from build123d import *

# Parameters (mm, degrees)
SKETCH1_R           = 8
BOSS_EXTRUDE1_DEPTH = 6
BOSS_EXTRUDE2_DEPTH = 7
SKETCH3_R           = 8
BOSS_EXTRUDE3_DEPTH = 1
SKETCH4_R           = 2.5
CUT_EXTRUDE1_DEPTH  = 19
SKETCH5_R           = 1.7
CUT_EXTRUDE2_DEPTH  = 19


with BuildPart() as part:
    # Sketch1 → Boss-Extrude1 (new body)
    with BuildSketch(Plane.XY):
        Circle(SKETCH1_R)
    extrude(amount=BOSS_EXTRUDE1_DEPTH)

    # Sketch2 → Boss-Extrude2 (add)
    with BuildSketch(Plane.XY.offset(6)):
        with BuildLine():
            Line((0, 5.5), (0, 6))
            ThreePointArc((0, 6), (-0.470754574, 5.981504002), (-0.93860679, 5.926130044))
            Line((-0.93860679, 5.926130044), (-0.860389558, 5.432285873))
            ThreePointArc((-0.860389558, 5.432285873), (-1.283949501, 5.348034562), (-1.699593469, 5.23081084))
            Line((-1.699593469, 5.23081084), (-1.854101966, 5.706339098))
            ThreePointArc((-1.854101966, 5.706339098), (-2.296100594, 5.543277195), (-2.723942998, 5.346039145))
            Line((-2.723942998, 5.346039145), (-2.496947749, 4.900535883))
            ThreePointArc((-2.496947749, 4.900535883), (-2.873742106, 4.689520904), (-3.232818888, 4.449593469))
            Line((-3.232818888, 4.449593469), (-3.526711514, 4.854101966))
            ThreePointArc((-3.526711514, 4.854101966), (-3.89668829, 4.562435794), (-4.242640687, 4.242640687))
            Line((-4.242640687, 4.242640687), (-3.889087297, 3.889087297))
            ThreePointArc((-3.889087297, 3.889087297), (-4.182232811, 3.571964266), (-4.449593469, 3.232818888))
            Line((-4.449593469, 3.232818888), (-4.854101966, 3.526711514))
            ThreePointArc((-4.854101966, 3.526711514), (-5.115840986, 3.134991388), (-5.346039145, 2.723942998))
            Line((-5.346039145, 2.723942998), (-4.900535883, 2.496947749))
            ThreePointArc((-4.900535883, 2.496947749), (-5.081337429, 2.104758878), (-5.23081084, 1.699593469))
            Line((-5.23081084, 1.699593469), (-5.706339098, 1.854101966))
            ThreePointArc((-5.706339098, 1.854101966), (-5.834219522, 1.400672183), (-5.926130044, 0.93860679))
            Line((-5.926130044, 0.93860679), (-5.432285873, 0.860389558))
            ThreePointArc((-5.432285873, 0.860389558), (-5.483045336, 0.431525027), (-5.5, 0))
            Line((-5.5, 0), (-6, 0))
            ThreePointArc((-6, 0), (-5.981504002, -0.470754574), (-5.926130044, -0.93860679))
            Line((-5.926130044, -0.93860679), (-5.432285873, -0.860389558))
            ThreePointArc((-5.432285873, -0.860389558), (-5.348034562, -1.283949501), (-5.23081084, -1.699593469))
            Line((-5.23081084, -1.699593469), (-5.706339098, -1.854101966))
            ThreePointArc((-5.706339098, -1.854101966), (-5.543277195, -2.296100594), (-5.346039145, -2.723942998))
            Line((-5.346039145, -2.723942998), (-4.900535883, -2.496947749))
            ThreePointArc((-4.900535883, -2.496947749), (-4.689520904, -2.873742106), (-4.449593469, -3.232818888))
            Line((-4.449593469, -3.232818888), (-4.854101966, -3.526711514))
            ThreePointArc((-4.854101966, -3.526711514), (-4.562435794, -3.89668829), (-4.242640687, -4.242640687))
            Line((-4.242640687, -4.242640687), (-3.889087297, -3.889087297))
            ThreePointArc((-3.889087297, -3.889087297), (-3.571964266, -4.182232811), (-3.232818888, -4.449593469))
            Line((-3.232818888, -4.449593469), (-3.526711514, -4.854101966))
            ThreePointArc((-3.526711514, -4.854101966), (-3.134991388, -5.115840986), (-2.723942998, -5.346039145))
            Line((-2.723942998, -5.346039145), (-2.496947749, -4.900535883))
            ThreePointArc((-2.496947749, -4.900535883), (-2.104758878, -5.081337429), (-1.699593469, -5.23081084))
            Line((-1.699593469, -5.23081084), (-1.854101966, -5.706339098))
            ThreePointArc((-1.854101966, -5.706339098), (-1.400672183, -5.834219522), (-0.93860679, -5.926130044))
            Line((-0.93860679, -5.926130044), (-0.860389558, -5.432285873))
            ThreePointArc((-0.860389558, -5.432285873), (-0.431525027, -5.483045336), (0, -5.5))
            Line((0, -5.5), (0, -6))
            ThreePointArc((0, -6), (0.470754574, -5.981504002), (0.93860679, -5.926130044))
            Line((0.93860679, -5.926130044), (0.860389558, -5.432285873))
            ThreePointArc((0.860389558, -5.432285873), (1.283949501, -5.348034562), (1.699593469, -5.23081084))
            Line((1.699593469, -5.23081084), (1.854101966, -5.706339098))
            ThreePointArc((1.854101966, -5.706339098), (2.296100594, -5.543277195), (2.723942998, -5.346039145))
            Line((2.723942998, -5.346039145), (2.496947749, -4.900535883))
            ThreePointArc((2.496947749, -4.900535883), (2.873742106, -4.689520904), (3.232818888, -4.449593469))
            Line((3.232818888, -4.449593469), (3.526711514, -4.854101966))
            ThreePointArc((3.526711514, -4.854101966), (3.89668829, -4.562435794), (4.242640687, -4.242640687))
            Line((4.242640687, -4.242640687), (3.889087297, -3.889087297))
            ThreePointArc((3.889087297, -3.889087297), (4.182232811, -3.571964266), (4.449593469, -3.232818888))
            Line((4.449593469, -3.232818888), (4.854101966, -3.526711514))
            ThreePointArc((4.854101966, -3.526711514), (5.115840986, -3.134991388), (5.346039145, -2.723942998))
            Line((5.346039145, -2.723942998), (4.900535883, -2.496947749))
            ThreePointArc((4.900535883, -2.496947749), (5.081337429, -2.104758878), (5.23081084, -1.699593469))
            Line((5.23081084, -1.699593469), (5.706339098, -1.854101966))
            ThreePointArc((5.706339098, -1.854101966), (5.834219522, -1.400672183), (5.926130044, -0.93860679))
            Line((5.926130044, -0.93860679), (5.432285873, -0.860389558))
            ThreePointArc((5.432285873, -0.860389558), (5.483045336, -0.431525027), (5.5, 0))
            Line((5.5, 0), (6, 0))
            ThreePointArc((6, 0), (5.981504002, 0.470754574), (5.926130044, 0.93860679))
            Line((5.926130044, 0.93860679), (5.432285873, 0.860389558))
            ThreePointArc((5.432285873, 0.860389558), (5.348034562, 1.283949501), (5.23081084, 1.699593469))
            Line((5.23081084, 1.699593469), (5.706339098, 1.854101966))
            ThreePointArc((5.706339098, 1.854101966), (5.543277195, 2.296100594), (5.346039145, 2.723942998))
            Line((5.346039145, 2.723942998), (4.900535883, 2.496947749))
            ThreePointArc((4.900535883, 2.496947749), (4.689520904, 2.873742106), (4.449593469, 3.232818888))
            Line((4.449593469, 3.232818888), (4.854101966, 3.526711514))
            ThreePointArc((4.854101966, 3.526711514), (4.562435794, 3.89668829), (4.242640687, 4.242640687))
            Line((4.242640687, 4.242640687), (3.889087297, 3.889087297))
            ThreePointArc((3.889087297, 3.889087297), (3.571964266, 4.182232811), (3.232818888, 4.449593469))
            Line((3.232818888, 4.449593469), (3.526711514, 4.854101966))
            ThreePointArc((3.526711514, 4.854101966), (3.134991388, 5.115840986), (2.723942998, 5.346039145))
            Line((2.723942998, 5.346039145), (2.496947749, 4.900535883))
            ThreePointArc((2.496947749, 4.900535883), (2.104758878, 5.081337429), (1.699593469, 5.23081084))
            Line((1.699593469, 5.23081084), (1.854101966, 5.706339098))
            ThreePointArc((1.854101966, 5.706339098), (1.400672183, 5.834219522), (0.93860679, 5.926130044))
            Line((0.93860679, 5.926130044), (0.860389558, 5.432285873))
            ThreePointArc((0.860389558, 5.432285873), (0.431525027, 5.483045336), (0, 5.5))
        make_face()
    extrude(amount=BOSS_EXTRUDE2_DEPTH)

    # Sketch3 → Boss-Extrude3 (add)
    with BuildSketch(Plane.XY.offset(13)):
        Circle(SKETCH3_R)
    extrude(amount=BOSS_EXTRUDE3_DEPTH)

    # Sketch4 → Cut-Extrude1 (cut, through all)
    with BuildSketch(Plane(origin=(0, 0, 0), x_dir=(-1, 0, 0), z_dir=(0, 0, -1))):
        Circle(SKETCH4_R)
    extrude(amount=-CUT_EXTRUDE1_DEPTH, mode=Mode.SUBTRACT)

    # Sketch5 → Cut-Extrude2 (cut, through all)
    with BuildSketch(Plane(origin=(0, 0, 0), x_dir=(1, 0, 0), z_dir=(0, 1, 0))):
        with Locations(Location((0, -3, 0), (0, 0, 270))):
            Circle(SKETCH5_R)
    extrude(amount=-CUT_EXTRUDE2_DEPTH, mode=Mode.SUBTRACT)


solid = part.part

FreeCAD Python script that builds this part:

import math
import FreeCAD as App
import Part
import Sketcher
Q = App.Units.Quantity

doc = App.newDocument("Part")
body = doc.addObject("PartDesign::Body", "Body")

# Sketch on XY plane
sketch1 = body.newObject("Sketcher::SketchObject", "Sketch")
sketch1.AttachmentSupport = (doc.getObject("XY_Plane"), [""])
sketch1.MapMode = "FlatFace"
sketch1.addGeometry(Part.Circle(App.Vector(0, 0, 0), App.Vector(0, 0, 1), 8), False)
sketch1.addConstraint([
    Sketcher.Constraint("Coincident", 0, 3, -1, 1),
    Sketcher.Constraint("Diameter", 0, 16.0),
])
pad1 = body.newObject("PartDesign::Pad", "Pad")
pad1.Profile = sketch1
pad1.Length = 6

# Sketch on XY plane
sketch2 = body.newObject("Sketcher::SketchObject", "Sketch001")
sketch2.AttachmentSupport = (doc.getObject("XY_Plane"), [""])
sketch2.MapMode = "FlatFace"
sketch2.AttachmentOffset = App.Placement(App.Vector(0, 0, 6), App.Rotation())
sketch2.addGeometry([
    Part.LineSegment(App.Vector(0, 5.5, 0), App.Vector(0, 6, 0)),  # 0
    Part.ArcOfCircle(Part.Circle(App.Vector(0, 0, 0), App.Vector(0, 0, 1), 6), math.radians(90), math.radians(99)),  # 1
    Part.LineSegment(App.Vector(-0.94, 5.93, 0), App.Vector(-0.86, 5.43, 0)),  # 2
    Part.ArcOfCircle(Part.Circle(App.Vector(0, 0, 0), App.Vector(0, 0, 1), 5.5), math.radians(99), math.radians(108)),  # 3
    Part.LineSegment(App.Vector(-1.7, 5.23, 0), App.Vector(-1.85, 5.71, 0)),  # 4
    Part.ArcOfCircle(Part.Circle(App.Vector(0, 0, 0), App.Vector(0, 0, 1), 6), math.radians(108), math.radians(117)),  # 5
    Part.LineSegment(App.Vector(-2.72, 5.35, 0), App.Vector(-2.5, 4.9, 0)),  # 6
    Part.ArcOfCircle(Part.Circle(App.Vector(0, 0, 0), App.Vector(0, 0, 1), 5.5), math.radians(117), math.radians(126)),  # 7
    Part.LineSegment(App.Vector(-3.23, 4.45, 0), App.Vector(-3.53, 4.85, 0)),  # 8
    Part.ArcOfCircle(Part.Circle(App.Vector(0, 0, 0), App.Vector(0, 0, 1), 6), math.radians(126), math.radians(135)),  # 9
    Part.LineSegment(App.Vector(-4.24, 4.24, 0), App.Vector(-3.89, 3.89, 0)),  # 10
    Part.ArcOfCircle(Part.Circle(App.Vector(0, 0, 0), App.Vector(0, 0, 1), 5.5), math.radians(135), math.radians(144)),  # 11
    Part.LineSegment(App.Vector(-4.45, 3.23, 0), App.Vector(-4.85, 3.53, 0)),  # 12
    Part.ArcOfCircle(Part.Circle(App.Vector(0, 0, 0), App.Vector(0, 0, 1), 6), math.radians(144), math.radians(153)),  # 13
    Part.LineSegment(App.Vector(-5.35, 2.72, 0), App.Vector(-4.9, 2.5, 0)),  # 14
    Part.ArcOfCircle(Part.Circle(App.Vector(0, 0, 0), App.Vector(0, 0, 1), 5.5), math.radians(153), math.radians(162)),  # 15
    Part.LineSegment(App.Vector(-5.23, 1.7, 0), App.Vector(-5.71, 1.85, 0)),  # 16
    Part.ArcOfCircle(Part.Circle(App.Vector(0, 0, 0), App.Vector(0, 0, 1), 6), math.radians(162), math.radians(171)),  # 17
    Part.LineSegment(App.Vector(-5.93, 0.94, 0), App.Vector(-5.43, 0.86, 0)),  # 18
    Part.ArcOfCircle(Part.Circle(App.Vector(0, 0, 0), App.Vector(0, 0, 1), 5.5), math.radians(171), math.radians(180)),  # 19
    Part.LineSegment(App.Vector(-5.5, 0, 0), App.Vector(-6, 0, 0)),  # 20
    Part.ArcOfCircle(Part.Circle(App.Vector(0, 0, 0), App.Vector(0, 0, 1), 6), math.radians(-180), math.radians(-171)),  # 21
    Part.LineSegment(App.Vector(-5.93, -0.94, 0), App.Vector(-5.43, -0.86, 0)),  # 22
    Part.ArcOfCircle(Part.Circle(App.Vector(0, 0, 0), App.Vector(0, 0, 1), 5.5), math.radians(-171), math.radians(-162)),  # 23
    Part.LineSegment(App.Vector(-5.23, -1.7, 0), App.Vector(-5.71, -1.85, 0)),  # 24
    Part.ArcOfCircle(Part.Circle(App.Vector(0, 0, 0), App.Vector(0, 0, 1), 6), math.radians(-162), math.radians(-153)),  # 25
    Part.LineSegment(App.Vector(-5.35, -2.72, 0), App.Vector(-4.9, -2.5, 0)),  # 26
    Part.ArcOfCircle(Part.Circle(App.Vector(0, 0, 0), App.Vector(0, 0, 1), 5.5), math.radians(-153), math.radians(-144)),  # 27
    Part.LineSegment(App.Vector(-4.45, -3.23, 0), App.Vector(-4.85, -3.53, 0)),  # 28
    Part.ArcOfCircle(Part.Circle(App.Vector(0, 0, 0), App.Vector(0, 0, 1), 6), math.radians(-144), math.radians(-135)),  # 29
    Part.LineSegment(App.Vector(-4.24, -4.24, 0), App.Vector(-3.89, -3.89, 0)),  # 30
    Part.ArcOfCircle(Part.Circle(App.Vector(0, 0, 0), App.Vector(0, 0, 1), 5.5), math.radians(-135), math.radians(-126)),  # 31
    Part.LineSegment(App.Vector(-3.23, -4.45, 0), App.Vector(-3.53, -4.85, 0)),  # 32
    Part.ArcOfCircle(Part.Circle(App.Vector(0, 0, 0), App.Vector(0, 0, 1), 6), math.radians(-126), math.radians(-117)),  # 33
    Part.LineSegment(App.Vector(-2.72, -5.35, 0), App.Vector(-2.5, -4.9, 0)),  # 34
    Part.ArcOfCircle(Part.Circle(App.Vector(0, 0, 0), App.Vector(0, 0, 1), 5.5), math.radians(-117), math.radians(-108)),  # 35
    Part.LineSegment(App.Vector(-1.7, -5.23, 0), App.Vector(-1.85, -5.71, 0)),  # 36
    Part.ArcOfCircle(Part.Circle(App.Vector(0, 0, 0), App.Vector(0, 0, 1), 6), math.radians(-108), math.radians(-99)),  # 37
    Part.LineSegment(App.Vector(-0.94, -5.93, 0), App.Vector(-0.86, -5.43, 0)),  # 38
    Part.ArcOfCircle(Part.Circle(App.Vector(0, 0, 0), App.Vector(0, 0, 1), 5.5), math.radians(-99), math.radians(-90)),  # 39
    Part.LineSegment(App.Vector(0, -5.5, 0), App.Vector(0, -6, 0)),  # 40
    Part.ArcOfCircle(Part.Circle(App.Vector(0, 0, 0), App.Vector(0, 0, 1), 6), math.radians(-90), math.radians(-81)),  # 41
    Part.LineSegment(App.Vector(0.94, -5.93, 0), App.Vector(0.86, -5.43, 0)),  # 42
    Part.ArcOfCircle(Part.Circle(App.Vector(0, 0, 0), App.Vector(0, 0, 1), 5.5), math.radians(-81), math.radians(-72)),  # 43
    Part.LineSegment(App.Vector(1.7, -5.23, 0), App.Vector(1.85, -5.71, 0)),  # 44
    Part.ArcOfCircle(Part.Circle(App.Vector(0, 0, 0), App.Vector(0, 0, 1), 6), math.radians(-72), math.radians(-63)),  # 45
    Part.LineSegment(App.Vector(2.72, -5.35, 0), App.Vector(2.5, -4.9, 0)),  # 46
    Part.ArcOfCircle(Part.Circle(App.Vector(0, 0, 0), App.Vector(0, 0, 1), 5.5), math.radians(-63), math.radians(-54)),  # 47
    Part.LineSegment(App.Vector(3.23, -4.45, 0), App.Vector(3.53, -4.85, 0)),  # 48
    Part.ArcOfCircle(Part.Circle(App.Vector(0, 0, 0), App.Vector(0, 0, 1), 6), math.radians(-54), math.radians(-45)),  # 49
    Part.LineSegment(App.Vector(4.24, -4.24, 0), App.Vector(3.89, -3.89, 0)),  # 50
    Part.ArcOfCircle(Part.Circle(App.Vector(0, 0, 0), App.Vector(0, 0, 1), 5.5), math.radians(-45), math.radians(-36)),  # 51
    Part.LineSegment(App.Vector(4.45, -3.23, 0), App.Vector(4.85, -3.53, 0)),  # 52
    Part.ArcOfCircle(Part.Circle(App.Vector(0, 0, 0), App.Vector(0, 0, 1), 6), math.radians(-36), math.radians(-27)),  # 53
    Part.LineSegment(App.Vector(5.35, -2.72, 0), App.Vector(4.9, -2.5, 0)),  # 54
    Part.ArcOfCircle(Part.Circle(App.Vector(0, 0, 0), App.Vector(0, 0, 1), 5.5), math.radians(-27), math.radians(-18)),  # 55
    Part.LineSegment(App.Vector(5.23, -1.7, 0), App.Vector(5.71, -1.85, 0)),  # 56
    Part.ArcOfCircle(Part.Circle(App.Vector(0, 0, 0), App.Vector(0, 0, 1), 6), math.radians(-18), math.radians(-9)),  # 57
    Part.LineSegment(App.Vector(5.93, -0.94, 0), App.Vector(5.43, -0.86, 0)),  # 58
    Part.ArcOfCircle(Part.Circle(App.Vector(0, 0, 0), App.Vector(0, 0, 1), 5.5), math.radians(-9), math.radians(0)),  # 59
    Part.LineSegment(App.Vector(5.5, 0, 0), App.Vector(6, 0, 0)),  # 60
    Part.ArcOfCircle(Part.Circle(App.Vector(0, 0, 0), App.Vector(0, 0, 1), 6), math.radians(0), math.radians(9)),  # 61
    Part.LineSegment(App.Vector(5.93, 0.94, 0), App.Vector(5.43, 0.86, 0)),  # 62
    Part.ArcOfCircle(Part.Circle(App.Vector(0, 0, 0), App.Vector(0, 0, 1), 5.5), math.radians(9), math.radians(18)),  # 63
    Part.LineSegment(App.Vector(5.23, 1.7, 0), App.Vector(5.71, 1.85, 0)),  # 64
    Part.ArcOfCircle(Part.Circle(App.Vector(0, 0, 0), App.Vector(0, 0, 1), 6), math.radians(18), math.radians(27)),  # 65
    Part.LineSegment(App.Vector(5.35, 2.72, 0), App.Vector(4.9, 2.5, 0)),  # 66
    Part.ArcOfCircle(Part.Circle(App.Vector(0, 0, 0), App.Vector(0, 0, 1), 5.5), math.radians(27), math.radians(36)),  # 67
    Part.LineSegment(App.Vector(4.45, 3.23, 0), App.Vector(4.85, 3.53, 0)),  # 68
    Part.ArcOfCircle(Part.Circle(App.Vector(0, 0, 0), App.Vector(0, 0, 1), 6), math.radians(36), math.radians(45)),  # 69
    Part.LineSegment(App.Vector(4.24, 4.24, 0), App.Vector(3.89, 3.89, 0)),  # 70
    Part.ArcOfCircle(Part.Circle(App.Vector(0, 0, 0), App.Vector(0, 0, 1), 5.5), math.radians(45), math.radians(54)),  # 71
    Part.LineSegment(App.Vector(3.23, 4.45, 0), App.Vector(3.53, 4.85, 0)),  # 72
    Part.ArcOfCircle(Part.Circle(App.Vector(0, 0, 0), App.Vector(0, 0, 1), 6), math.radians(54), math.radians(63)),  # 73
    Part.LineSegment(App.Vector(2.72, 5.35, 0), App.Vector(2.5, 4.9, 0)),  # 74
    Part.ArcOfCircle(Part.Circle(App.Vector(0, 0, 0), App.Vector(0, 0, 1), 5.5), math.radians(63), math.radians(72)),  # 75
    Part.LineSegment(App.Vector(1.7, 5.23, 0), App.Vector(1.85, 5.71, 0)),  # 76
    Part.ArcOfCircle(Part.Circle(App.Vector(0, 0, 0), App.Vector(0, 0, 1), 6), math.radians(72), math.radians(81)),  # 77
    Part.LineSegment(App.Vector(0.94, 5.93, 0), App.Vector(0.86, 5.43, 0)),  # 78
    Part.ArcOfCircle(Part.Circle(App.Vector(0, 0, 0), App.Vector(0, 0, 1), 5.5), math.radians(81), math.radians(90)),  # 79
], False)
sketch2.addConstraint([
    Sketcher.Constraint("Coincident", 0, 2, 1, 1),
    Sketcher.Constraint("Coincident", 1, 2, 2, 1),
    Sketcher.Constraint("Coincident", 2, 2, 3, 1),
    Sketcher.Constraint("Coincident", 3, 2, 4, 1),
    Sketcher.Constraint("Coincident", 4, 2, 5, 1),
    Sketcher.Constraint("Coincident", 5, 2, 6, 1),
    Sketcher.Constraint("Coincident", 6, 2, 7, 1),
    Sketcher.Constraint("Coincident", 7, 2, 8, 1),
    Sketcher.Constraint("Coincident", 8, 2, 9, 1),
    Sketcher.Constraint("Coincident", 9, 2, 10, 1),
    Sketcher.Constraint("Coincident", 10, 2, 11, 1),
    Sketcher.Constraint("Coincident", 11, 2, 12, 1),
    Sketcher.Constraint("Coincident", 12, 2, 13, 1),
    Sketcher.Constraint("Coincident", 13, 2, 14, 1),
    Sketcher.Constraint("Coincident", 14, 2, 15, 1),
    Sketcher.Constraint("Coincident", 15, 2, 16, 1),
    Sketcher.Constraint("Coincident", 16, 2, 17, 1),
    Sketcher.Constraint("Coincident", 17, 2, 18, 1),
    Sketcher.Constraint("Coincident", 18, 2, 19, 1),
    Sketcher.Constraint("Coincident", 19, 2, 20, 1),
    Sketcher.Constraint("Coincident", 20, 2, 21, 1),
    Sketcher.Constraint("Coincident", 21, 2, 22, 1),
    Sketcher.Constraint("Coincident", 22, 2, 23, 1),
    Sketcher.Constraint("Coincident", 23, 2, 24, 1),
    Sketcher.Constraint("Coincident", 24, 2, 25, 1),
    Sketcher.Constraint("Coincident", 25, 2, 26, 1),
    Sketcher.Constraint("Coincident", 26, 2, 27, 1),
    Sketcher.Constraint("Coincident", 27, 2, 28, 1),
    Sketcher.Constraint("Coincident", 28, 2, 29, 1),
    Sketcher.Constraint("Coincident", 29, 2, 30, 1),
    Sketcher.Constraint("Coincident", 30, 2, 31, 1),
    Sketcher.Constraint("Coincident", 31, 2, 32, 1),
    Sketcher.Constraint("Coincident", 32, 2, 33, 1),
    Sketcher.Constraint("Coincident", 33, 2, 34, 1),
    Sketcher.Constraint("Coincident", 34, 2, 35, 1),
    Sketcher.Constraint("Coincident", 35, 2, 36, 1),
    Sketcher.Constraint("Coincident", 36, 2, 37, 1),
    Sketcher.Constraint("Coincident", 37, 2, 38, 1),
    Sketcher.Constraint("Coincident", 38, 2, 39, 1),
    Sketcher.Constraint("Coincident", 39, 2, 40, 1),
    Sketcher.Constraint("Coincident", 40, 2, 41, 1),
    Sketcher.Constraint("Coincident", 41, 2, 42, 1),
    Sketcher.Constraint("Coincident", 42, 2, 43, 1),
    Sketcher.Constraint("Coincident", 43, 2, 44, 1),
    Sketcher.Constraint("Coincident", 44, 2, 45, 1),
    Sketcher.Constraint("Coincident", 45, 2, 46, 1),
    Sketcher.Constraint("Coincident", 46, 2, 47, 1),
    Sketcher.Constraint("Coincident", 47, 2, 48, 1),
    Sketcher.Constraint("Coincident", 48, 2, 49, 1),
    Sketcher.Constraint("Coincident", 49, 2, 50, 1),
    Sketcher.Constraint("Coincident", 50, 2, 51, 1),
    Sketcher.Constraint("Coincident", 51, 2, 52, 1),
    Sketcher.Constraint("Coincident", 52, 2, 53, 1),
    Sketcher.Constraint("Coincident", 53, 2, 54, 1),
    Sketcher.Constraint("Coincident", 54, 2, 55, 1),
    Sketcher.Constraint("Coincident", 55, 2, 56, 1),
    Sketcher.Constraint("Coincident", 56, 2, 57, 1),
    Sketcher.Constraint("Coincident", 57, 2, 58, 1),
    Sketcher.Constraint("Coincident", 58, 2, 59, 1),
    Sketcher.Constraint("Coincident", 59, 2, 60, 1),
    Sketcher.Constraint("Coincident", 60, 2, 61, 1),
    Sketcher.Constraint("Coincident", 61, 2, 62, 1),
    Sketcher.Constraint("Coincident", 62, 2, 63, 1),
    Sketcher.Constraint("Coincident", 63, 2, 64, 1),
    Sketcher.Constraint("Coincident", 64, 2, 65, 1),
    Sketcher.Constraint("Coincident", 65, 2, 66, 1),
    Sketcher.Constraint("Coincident", 66, 2, 67, 1),
    Sketcher.Constraint("Coincident", 67, 2, 68, 1),
    Sketcher.Constraint("Coincident", 68, 2, 69, 1),
    Sketcher.Constraint("Coincident", 69, 2, 70, 1),
    Sketcher.Constraint("Coincident", 70, 2, 71, 1),
    Sketcher.Constraint("Coincident", 71, 2, 72, 1),
    Sketcher.Constraint("Coincident", 72, 2, 73, 1),
    Sketcher.Constraint("Coincident", 73, 2, 74, 1),
    Sketcher.Constraint("Coincident", 74, 2, 75, 1),
    Sketcher.Constraint("Coincident", 75, 2, 76, 1),
    Sketcher.Constraint("Coincident", 76, 2, 77, 1),
    Sketcher.Constraint("Coincident", 77, 2, 78, 1),
    Sketcher.Constraint("Coincident", 78, 2, 79, 1),
    Sketcher.Constraint("Coincident", 79, 2, 0, 1),
    Sketcher.Constraint("Vertical", 0),
    Sketcher.Constraint("Horizontal", 20),
    Sketcher.Constraint("Vertical", 40),
    Sketcher.Constraint("Horizontal", 60),
    Sketcher.Constraint("Coincident", 1, 3, -1, 1),
    Sketcher.Constraint("Coincident", 3, 3, -1, 1),
    Sketcher.Constraint("Coincident", 5, 3, -1, 1),
    Sketcher.Constraint("Coincident", 7, 3, -1, 1),
    Sketcher.Constraint("Coincident", 9, 3, -1, 1),
    Sketcher.Constraint("Coincident", 11, 3, -1, 1),
    Sketcher.Constraint("Coincident", 13, 3, -1, 1),
    Sketcher.Constraint("Coincident", 15, 3, -1, 1),
    Sketcher.Constraint("Coincident", 17, 3, -1, 1),
    Sketcher.Constraint("Coincident", 19, 3, -1, 1),
    Sketcher.Constraint("Coincident", 21, 3, -1, 1),
    Sketcher.Constraint("Coincident", 23, 3, -1, 1),
    Sketcher.Constraint("Coincident", 25, 3, -1, 1),
    Sketcher.Constraint("Coincident", 27, 3, -1, 1),
    Sketcher.Constraint("Coincident", 29, 3, -1, 1),
    Sketcher.Constraint("Coincident", 31, 3, -1, 1),
    Sketcher.Constraint("Coincident", 33, 3, -1, 1),
    Sketcher.Constraint("Coincident", 35, 3, -1, 1),
    Sketcher.Constraint("Coincident", 37, 3, -1, 1),
    Sketcher.Constraint("Coincident", 39, 3, -1, 1),
    Sketcher.Constraint("Coincident", 41, 3, -1, 1),
    Sketcher.Constraint("Coincident", 43, 3, -1, 1),
    Sketcher.Constraint("Coincident", 45, 3, -1, 1),
    Sketcher.Constraint("Coincident", 47, 3, -1, 1),
    Sketcher.Constraint("Coincident", 49, 3, -1, 1),
    Sketcher.Constraint("Coincident", 51, 3, -1, 1),
    Sketcher.Constraint("Coincident", 53, 3, -1, 1),
    Sketcher.Constraint("Coincident", 55, 3, -1, 1),
    Sketcher.Constraint("Coincident", 57, 3, -1, 1),
    Sketcher.Constraint("Coincident", 59, 3, -1, 1),
    Sketcher.Constraint("Coincident", 61, 3, -1, 1),
    Sketcher.Constraint("Coincident", 63, 3, -1, 1),
    Sketcher.Constraint("Coincident", 65, 3, -1, 1),
    Sketcher.Constraint("Coincident", 67, 3, -1, 1),
    Sketcher.Constraint("Coincident", 69, 3, -1, 1),
    Sketcher.Constraint("Coincident", 71, 3, -1, 1),
    Sketcher.Constraint("Coincident", 73, 3, -1, 1),
    Sketcher.Constraint("Coincident", 75, 3, -1, 1),
    Sketcher.Constraint("Coincident", 77, 3, -1, 1),
    Sketcher.Constraint("Coincident", 79, 3, -1, 1),
    Sketcher.Constraint("Equal", 1, 5),
    Sketcher.Constraint("Equal", 3, 7),
    Sketcher.Constraint("Equal", 5, 9),
    Sketcher.Constraint("Equal", 7, 11),
    Sketcher.Constraint("Equal", 9, 13),
    Sketcher.Constraint("Equal", 11, 15),
    Sketcher.Constraint("Equal", 13, 17),
    Sketcher.Constraint("Equal", 15, 19),
    Sketcher.Constraint("Equal", 17, 21),
    Sketcher.Constraint("Equal", 19, 23),
    Sketcher.Constraint("Equal", 21, 25),
    Sketcher.Constraint("Equal", 23, 27),
    Sketcher.Constraint("Equal", 25, 29),
    Sketcher.Constraint("Equal", 27, 31),
    Sketcher.Constraint("Equal", 29, 33),
    Sketcher.Constraint("Equal", 31, 35),
    Sketcher.Constraint("Equal", 33, 37),
    Sketcher.Constraint("Equal", 35, 39),
    Sketcher.Constraint("Equal", 37, 41),
    Sketcher.Constraint("Equal", 39, 43),
    Sketcher.Constraint("Equal", 41, 45),
    Sketcher.Constraint("Equal", 43, 47),
    Sketcher.Constraint("Equal", 45, 49),
    Sketcher.Constraint("Equal", 47, 51),
    Sketcher.Constraint("Equal", 49, 53),
    Sketcher.Constraint("Equal", 51, 55),
    Sketcher.Constraint("Equal", 53, 57),
    Sketcher.Constraint("Equal", 55, 59),
    Sketcher.Constraint("Equal", 57, 61),
    Sketcher.Constraint("Equal", 59, 63),
    Sketcher.Constraint("Equal", 61, 65),
    Sketcher.Constraint("Equal", 63, 67),
    Sketcher.Constraint("Equal", 65, 69),
    Sketcher.Constraint("Equal", 67, 71),
    Sketcher.Constraint("Equal", 69, 73),
    Sketcher.Constraint("Equal", 71, 75),
    Sketcher.Constraint("Equal", 73, 77),
    Sketcher.Constraint("Equal", 75, 79),
    Sketcher.Constraint("PointOnObject", 0, 2, -2),
    Sketcher.Constraint("PointOnObject", 19, 2, -1),
    Sketcher.Constraint("PointOnObject", 39, 2, -2),
    Sketcher.Constraint("PointOnObject", 59, 2, -1),
    Sketcher.Constraint("Perpendicular", 2, 22),
    Sketcher.Constraint("Perpendicular", 4, 24),
    Sketcher.Constraint("Perpendicular", 6, 26),
    Sketcher.Constraint("Perpendicular", 8, 28),
    Sketcher.Constraint("Perpendicular", 10, 30),
    Sketcher.Constraint("Perpendicular", 12, 32),
    Sketcher.Constraint("Perpendicular", 14, 34),
    Sketcher.Constraint("Perpendicular", 16, 36),
    Sketcher.Constraint("Perpendicular", 18, 38),
    Sketcher.Constraint("Perpendicular", 22, 42),
    Sketcher.Constraint("Perpendicular", 24, 44),
    Sketcher.Constraint("Perpendicular", 26, 46),
    Sketcher.Constraint("Perpendicular", 28, 48),
    Sketcher.Constraint("Perpendicular", 30, 50),
    Sketcher.Constraint("Perpendicular", 32, 52),
    Sketcher.Constraint("Perpendicular", 34, 54),
    Sketcher.Constraint("Perpendicular", 36, 56),
    Sketcher.Constraint("Perpendicular", 38, 58),
    Sketcher.Constraint("Perpendicular", 42, 62),
    Sketcher.Constraint("Perpendicular", 44, 64),
    Sketcher.Constraint("Perpendicular", 46, 66),
    Sketcher.Constraint("Perpendicular", 48, 68),
    Sketcher.Constraint("Perpendicular", 50, 70),
    Sketcher.Constraint("Perpendicular", 52, 72),
    Sketcher.Constraint("Perpendicular", 54, 74),
    Sketcher.Constraint("Perpendicular", 56, 76),
    Sketcher.Constraint("Perpendicular", 58, 78),
    Sketcher.Constraint("Horizontal", 37, 2, 41, 2),
    Sketcher.Constraint("Horizontal", 38, 2, 42, 2),
    Sketcher.Constraint("Horizontal", 35, 2, 43, 2),
    Sketcher.Constraint("Horizontal", 36, 2, 44, 2),
    Sketcher.Constraint("Horizontal", 33, 2, 45, 2),
    Sketcher.Constraint("Horizontal", 34, 2, 46, 2),
    Sketcher.Constraint("Horizontal", 31, 2, 47, 2),
    Sketcher.Constraint("Horizontal", 32, 2, 48, 2),
    Sketcher.Constraint("Horizontal", 29, 2, 49, 2),
    Sketcher.Constraint("Horizontal", 30, 2, 50, 2),
    Sketcher.Constraint("Horizontal", 27, 2, 51, 2),
    Sketcher.Constraint("Horizontal", 25, 2, 53, 2),
    Sketcher.Constraint("Horizontal", 23, 2, 55, 2),
    Sketcher.Constraint("Horizontal", 21, 2, 57, 2),
    Sketcher.Constraint("Horizontal", 17, 2, 61, 2),
    Sketcher.Constraint("Horizontal", 15, 2, 63, 2),
    Sketcher.Constraint("Horizontal", 13, 2, 65, 2),
    Sketcher.Constraint("Horizontal", 11, 2, 67, 2),
    Sketcher.Constraint("Horizontal", 9, 2, 69, 2),
    Sketcher.Constraint("Horizontal", 7, 2, 71, 2),
    Sketcher.Constraint("Horizontal", 5, 2, 73, 2),
    Sketcher.Constraint("Horizontal", 3, 2, 75, 2),
    Sketcher.Constraint("Horizontal", 1, 2, 77, 2),
    Sketcher.Constraint("Vertical", 17, 2, 21, 2),
    Sketcher.Constraint("Vertical", 15, 2, 23, 2),
    Sketcher.Constraint("Vertical", 13, 2, 25, 2),
    Sketcher.Constraint("Vertical", 11, 2, 27, 2),
    Sketcher.Constraint("Vertical", 9, 2, 29, 2),
    Sketcher.Constraint("Vertical", 7, 2, 31, 2),
    Sketcher.Constraint("Vertical", 5, 2, 33, 2),
    Sketcher.Constraint("Vertical", 3, 2, 35, 2),
    Sketcher.Constraint("Vertical", 1, 2, 37, 2),
    Sketcher.Constraint("Radius", 1, 6.0),
    Sketcher.Constraint("Radius", 3, 5.5),
    Sketcher.Constraint("Angle", 2, Q("-81 deg")),
    Sketcher.Constraint("Angle", 4, Q("108 deg")),
    Sketcher.Constraint("Angle", 6, Q("-63 deg")),
    Sketcher.Constraint("Angle", 8, Q("126 deg")),
    Sketcher.Constraint("DistanceX", 4, 2, -1, 1, 1.854102),
    Sketcher.Constraint("DistanceY", -1, 1, 8, 2, 4.854102),
    Sketcher.Constraint("DistanceX", 12, 2, -1, 1, 4.854102),
    Sketcher.Constraint("DistanceY", -1, 1, 16, 2, 1.854102),
    Sketcher.Constraint("DistanceY", -1, 1, 1, 2, 5.92613),
    Sketcher.Constraint("DistanceY", -1, 1, 5, 2, 5.346039),
    Sketcher.Constraint("DistanceX", 9, 2, -1, 1, 4.242641),
    Sketcher.Constraint("DistanceX", 13, 2, -1, 1, 5.346039),
    Sketcher.Constraint("DistanceX", 17, 2, -1, 1, 5.92613),
])
pad2 = body.newObject("PartDesign::Pad", "Pad001")
pad2.Profile = sketch2
pad2.Length = 7

# Sketch on XY plane
sketch3 = body.newObject("Sketcher::SketchObject", "Sketch002")
sketch3.AttachmentSupport = (doc.getObject("XY_Plane"), [""])
sketch3.MapMode = "FlatFace"
sketch3.AttachmentOffset = App.Placement(App.Vector(0, 0, 13), App.Rotation())
sketch3.addGeometry(Part.Circle(App.Vector(0, 0, 0), App.Vector(0, 0, 1), 8), False)
sketch3.addConstraint([
    Sketcher.Constraint("Coincident", 0, 3, -1, 1),
    Sketcher.Constraint("Diameter", 0, 16.0),
])
pad3 = body.newObject("PartDesign::Pad", "Pad002")
pad3.Profile = sketch3
pad3.Length = 1

# Sketch on XY plane
sketch4 = body.newObject("Sketcher::SketchObject", "Sketch003")
sketch4.AttachmentSupport = (doc.getObject("XY_Plane"), [""])
sketch4.MapMode = "FlatFace"
sketch4.addGeometry(Part.Circle(App.Vector(0, 0, 0), App.Vector(0, 0, 1), 2.5), False)
sketch4.addConstraint([
    Sketcher.Constraint("Coincident", 0, 3, -1, 1),
    Sketcher.Constraint("Diameter", 0, 5.0),
])
pocket1 = body.newObject("PartDesign::Pocket", "Pocket")
pocket1.Profile = sketch4
pocket1.Type = "ThroughAll"
pocket1.Reversed = True

# Sketch on XZ plane
sketch5 = body.newObject("Sketcher::SketchObject", "Sketch004")
sketch5.AttachmentSupport = (doc.getObject("XZ_Plane"), [""])
sketch5.MapMode = "FlatFace"
sketch5.addGeometry(Part.Circle(App.Vector(0, 3, 0), App.Vector(0, 0, 1), 1.7), False)
sketch5.addConstraint([
    Sketcher.Constraint("PointOnObject", 0, 3, -2),
    Sketcher.Constraint("Diameter", 0, 3.4),
    Sketcher.Constraint("DistanceY", -1, 1, 0, 3, 3.0),
])
pocket2 = body.newObject("PartDesign::Pocket", "Pocket001")
pocket2.Profile = sketch5
pocket2.Type = "ThroughAll"
pocket2.Reversed = True

doc.recompute()
